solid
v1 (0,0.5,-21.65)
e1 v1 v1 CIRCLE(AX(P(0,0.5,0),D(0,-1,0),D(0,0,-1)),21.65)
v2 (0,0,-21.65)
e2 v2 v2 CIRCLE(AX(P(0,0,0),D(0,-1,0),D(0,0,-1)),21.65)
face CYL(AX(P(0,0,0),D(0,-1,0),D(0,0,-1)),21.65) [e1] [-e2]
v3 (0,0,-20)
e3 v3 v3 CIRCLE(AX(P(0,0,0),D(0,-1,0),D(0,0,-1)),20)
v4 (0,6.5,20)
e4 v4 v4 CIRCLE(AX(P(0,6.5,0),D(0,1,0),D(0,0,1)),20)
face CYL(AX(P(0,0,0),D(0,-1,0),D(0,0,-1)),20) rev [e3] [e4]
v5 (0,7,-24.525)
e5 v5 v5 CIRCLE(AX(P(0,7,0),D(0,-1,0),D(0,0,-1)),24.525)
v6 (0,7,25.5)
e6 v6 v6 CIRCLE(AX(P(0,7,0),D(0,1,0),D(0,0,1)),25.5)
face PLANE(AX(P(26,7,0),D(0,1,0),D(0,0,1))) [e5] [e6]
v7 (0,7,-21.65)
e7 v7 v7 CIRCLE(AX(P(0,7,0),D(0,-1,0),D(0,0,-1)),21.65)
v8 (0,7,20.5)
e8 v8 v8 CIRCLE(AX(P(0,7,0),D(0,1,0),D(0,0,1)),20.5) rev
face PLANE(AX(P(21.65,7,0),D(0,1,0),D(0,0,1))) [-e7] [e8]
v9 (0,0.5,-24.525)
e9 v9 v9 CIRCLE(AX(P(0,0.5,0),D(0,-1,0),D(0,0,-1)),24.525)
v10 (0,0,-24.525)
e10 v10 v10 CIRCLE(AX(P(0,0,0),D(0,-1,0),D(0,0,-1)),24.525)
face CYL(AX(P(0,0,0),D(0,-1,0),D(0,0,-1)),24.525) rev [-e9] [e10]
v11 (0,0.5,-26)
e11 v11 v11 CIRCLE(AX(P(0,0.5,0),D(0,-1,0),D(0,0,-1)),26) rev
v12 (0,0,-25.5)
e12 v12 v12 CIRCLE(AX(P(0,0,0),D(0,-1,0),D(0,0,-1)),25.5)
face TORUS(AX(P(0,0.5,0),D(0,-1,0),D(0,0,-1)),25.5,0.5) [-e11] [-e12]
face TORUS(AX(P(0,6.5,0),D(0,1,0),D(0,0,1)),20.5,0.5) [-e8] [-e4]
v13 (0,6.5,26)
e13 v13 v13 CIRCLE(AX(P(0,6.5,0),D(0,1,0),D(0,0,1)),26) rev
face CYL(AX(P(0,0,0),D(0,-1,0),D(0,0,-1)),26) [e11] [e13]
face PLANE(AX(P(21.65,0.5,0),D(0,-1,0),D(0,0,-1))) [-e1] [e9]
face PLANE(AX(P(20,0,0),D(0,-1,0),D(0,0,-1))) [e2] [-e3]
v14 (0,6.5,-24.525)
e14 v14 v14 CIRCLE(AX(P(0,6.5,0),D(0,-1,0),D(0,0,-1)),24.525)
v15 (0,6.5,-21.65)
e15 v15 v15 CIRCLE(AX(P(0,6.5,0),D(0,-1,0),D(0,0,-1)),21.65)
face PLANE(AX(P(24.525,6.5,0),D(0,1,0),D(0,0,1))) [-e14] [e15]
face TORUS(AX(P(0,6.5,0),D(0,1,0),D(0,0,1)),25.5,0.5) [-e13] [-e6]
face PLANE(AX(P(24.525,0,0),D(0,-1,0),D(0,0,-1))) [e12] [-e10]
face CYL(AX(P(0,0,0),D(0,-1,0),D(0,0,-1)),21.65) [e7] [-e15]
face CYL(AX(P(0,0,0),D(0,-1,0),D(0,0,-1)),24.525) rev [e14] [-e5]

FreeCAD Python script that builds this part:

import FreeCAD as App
import Part
import Sketcher

V = App.Vector
Q = App.Units.Quantity


def edges_at(feature, points):
    """Names of the edges that pass closest to the given points."""
    edges = feature.Shape.Edges
    near = lambda p: min(range(len(edges)), key=lambda i: edges[i].distToShape(Part.Vertex(*p))[0])
    return sorted({f"Edge{near(p) + 1}" for p in points})

doc = App.newDocument("Part")
body = doc.addObject("PartDesign::Body", "Body")

# Sketch on XY plane
sketch1 = body.newObject("Sketcher::SketchObject", "Sketch")
sketch1.AttachmentSupport = (doc.getObject("XY_Plane"), [""])
sketch1.MapMode = "FlatFace"
sketch1.addGeometry([
    Part.LineSegment(V(20, 0, 0), V(21.6, 0, 0)),  # 0
    Part.LineSegment(V(21.6, 0, 0), V(21.6, 0.5, 0)),  # 1
    Part.LineSegment(V(21.6, 0.5, 0), V(24.5, 0.5, 0)),  # 2
    Part.LineSegment(V(24.5, 0.5, 0), V(24.5, 0, 0)),  # 3
    Part.LineSegment(V(24.5, 0, 0), V(26, 0, 0)),  # 4
    Part.LineSegment(V(26, 0, 0), V(26, 7, 0)),  # 5
    Part.LineSegment(V(26, 7, 0), V(24.5, 7, 0)),  # 6
    Part.LineSegment(V(24.5, 7, 0), V(24.5, 6.5, 0)),  # 7
    Part.LineSegment(V(24.5, 6.5, 0), V(21.6, 6.5, 0)),  # 8
    Part.LineSegment(V(21.6, 6.5, 0), V(21.6, 7, 0)),  # 9
    Part.LineSegment(V(21.6, 7, 0), V(20, 7, 0)),  # 10
    Part.LineSegment(V(20, 7, 0), V(20, 0, 0)),  # 11
], False)
sketch1.addConstraint([
    Sketcher.Constraint("Coincident", 0, 2, 1, 1),
    Sketcher.Constraint("Coincident", 1, 2, 2, 1),
    Sketcher.Constraint("Coincident", 2, 2, 3, 1),
    Sketcher.Constraint("Coincident", 3, 2, 4, 1),
    Sketcher.Constraint("Coincident", 4, 2, 5, 1),
    Sketcher.Constraint("Coincident", 5, 2, 6, 1),
    Sketcher.Constraint("Coincident", 6, 2, 7, 1),
    Sketcher.Constraint("Coincident", 7, 2, 8, 1),
    Sketcher.Constraint("Coincident", 8, 2, 9, 1),
    Sketcher.Constraint("Coincident", 9, 2, 10, 1),
    Sketcher.Constraint("Coincident", 10, 2, 11, 1),
    Sketcher.Constraint("Coincident", 11, 2, 0, 1),
    Sketcher.Constraint("Horizontal", 0),
    Sketcher.Constraint("Vertical", 1),
    Sketcher.Constraint("Horizontal", 2),
    Sketcher.Constraint("Vertical", 3),
    Sketcher.Constraint("Horizontal", 4),
    Sketcher.Constraint("Vertical", 5),
    Sketcher.Constraint("Horizontal", 6),
    Sketcher.Constraint("Vertical", 7),
    Sketcher.Constraint("Horizontal", 8),
    Sketcher.Constraint("Vertical", 9),
    Sketcher.Constraint("Horizontal", 10),
    Sketcher.Constraint("Vertical", 11),
    Sketcher.Constraint("PointOnObject", 0, 2, -1),
    Sketcher.Constraint("PointOnObject", 3, 2, -1),
    Sketcher.Constraint("Horizontal", 6, 2, 9, 2),
    Sketcher.Constraint("Vertical", 3, 2, 6, 2),
    Sketcher.Constraint("Vertical", 1, 2, 8, 2),
    Sketcher.Constraint("Equal", 3, 7),
    Sketcher.Constraint("DistanceY", 5, 1, 5, 2, Q("7 mm")),
    Sketcher.Constraint("DistanceY", 1, 1, 1, 2, Q("0.5 mm")),
    Sketcher.Constraint("DistanceX", -1, 1, 4, 2, Q("26 mm")),
    Sketcher.Constraint("DistanceX", -1, 1, 10, 2, Q("20 mm")),
    Sketcher.Constraint("DistanceX", 0, 1, 0, 2, Q("1.65 mm")),
    Sketcher.Constraint("DistanceX", 2, 1, 2, 2, Q("2.875 mm")),
])
revolution = body.newObject("PartDesign::Revolution", "Revolution")
revolution.Profile = sketch1
revolution.ReferenceAxis = (sketch1, ["V_Axis"])
revolution.Angle = 360
doc.recompute()

fillet = body.newObject("PartDesign::Fillet", "Fillet")
fillet.Base = (revolution, edges_at(revolution, [(0, 7, 26), (0, 0, 26), (0, 7, 20)]))
fillet.Radius = 0.5

doc.recompute()
